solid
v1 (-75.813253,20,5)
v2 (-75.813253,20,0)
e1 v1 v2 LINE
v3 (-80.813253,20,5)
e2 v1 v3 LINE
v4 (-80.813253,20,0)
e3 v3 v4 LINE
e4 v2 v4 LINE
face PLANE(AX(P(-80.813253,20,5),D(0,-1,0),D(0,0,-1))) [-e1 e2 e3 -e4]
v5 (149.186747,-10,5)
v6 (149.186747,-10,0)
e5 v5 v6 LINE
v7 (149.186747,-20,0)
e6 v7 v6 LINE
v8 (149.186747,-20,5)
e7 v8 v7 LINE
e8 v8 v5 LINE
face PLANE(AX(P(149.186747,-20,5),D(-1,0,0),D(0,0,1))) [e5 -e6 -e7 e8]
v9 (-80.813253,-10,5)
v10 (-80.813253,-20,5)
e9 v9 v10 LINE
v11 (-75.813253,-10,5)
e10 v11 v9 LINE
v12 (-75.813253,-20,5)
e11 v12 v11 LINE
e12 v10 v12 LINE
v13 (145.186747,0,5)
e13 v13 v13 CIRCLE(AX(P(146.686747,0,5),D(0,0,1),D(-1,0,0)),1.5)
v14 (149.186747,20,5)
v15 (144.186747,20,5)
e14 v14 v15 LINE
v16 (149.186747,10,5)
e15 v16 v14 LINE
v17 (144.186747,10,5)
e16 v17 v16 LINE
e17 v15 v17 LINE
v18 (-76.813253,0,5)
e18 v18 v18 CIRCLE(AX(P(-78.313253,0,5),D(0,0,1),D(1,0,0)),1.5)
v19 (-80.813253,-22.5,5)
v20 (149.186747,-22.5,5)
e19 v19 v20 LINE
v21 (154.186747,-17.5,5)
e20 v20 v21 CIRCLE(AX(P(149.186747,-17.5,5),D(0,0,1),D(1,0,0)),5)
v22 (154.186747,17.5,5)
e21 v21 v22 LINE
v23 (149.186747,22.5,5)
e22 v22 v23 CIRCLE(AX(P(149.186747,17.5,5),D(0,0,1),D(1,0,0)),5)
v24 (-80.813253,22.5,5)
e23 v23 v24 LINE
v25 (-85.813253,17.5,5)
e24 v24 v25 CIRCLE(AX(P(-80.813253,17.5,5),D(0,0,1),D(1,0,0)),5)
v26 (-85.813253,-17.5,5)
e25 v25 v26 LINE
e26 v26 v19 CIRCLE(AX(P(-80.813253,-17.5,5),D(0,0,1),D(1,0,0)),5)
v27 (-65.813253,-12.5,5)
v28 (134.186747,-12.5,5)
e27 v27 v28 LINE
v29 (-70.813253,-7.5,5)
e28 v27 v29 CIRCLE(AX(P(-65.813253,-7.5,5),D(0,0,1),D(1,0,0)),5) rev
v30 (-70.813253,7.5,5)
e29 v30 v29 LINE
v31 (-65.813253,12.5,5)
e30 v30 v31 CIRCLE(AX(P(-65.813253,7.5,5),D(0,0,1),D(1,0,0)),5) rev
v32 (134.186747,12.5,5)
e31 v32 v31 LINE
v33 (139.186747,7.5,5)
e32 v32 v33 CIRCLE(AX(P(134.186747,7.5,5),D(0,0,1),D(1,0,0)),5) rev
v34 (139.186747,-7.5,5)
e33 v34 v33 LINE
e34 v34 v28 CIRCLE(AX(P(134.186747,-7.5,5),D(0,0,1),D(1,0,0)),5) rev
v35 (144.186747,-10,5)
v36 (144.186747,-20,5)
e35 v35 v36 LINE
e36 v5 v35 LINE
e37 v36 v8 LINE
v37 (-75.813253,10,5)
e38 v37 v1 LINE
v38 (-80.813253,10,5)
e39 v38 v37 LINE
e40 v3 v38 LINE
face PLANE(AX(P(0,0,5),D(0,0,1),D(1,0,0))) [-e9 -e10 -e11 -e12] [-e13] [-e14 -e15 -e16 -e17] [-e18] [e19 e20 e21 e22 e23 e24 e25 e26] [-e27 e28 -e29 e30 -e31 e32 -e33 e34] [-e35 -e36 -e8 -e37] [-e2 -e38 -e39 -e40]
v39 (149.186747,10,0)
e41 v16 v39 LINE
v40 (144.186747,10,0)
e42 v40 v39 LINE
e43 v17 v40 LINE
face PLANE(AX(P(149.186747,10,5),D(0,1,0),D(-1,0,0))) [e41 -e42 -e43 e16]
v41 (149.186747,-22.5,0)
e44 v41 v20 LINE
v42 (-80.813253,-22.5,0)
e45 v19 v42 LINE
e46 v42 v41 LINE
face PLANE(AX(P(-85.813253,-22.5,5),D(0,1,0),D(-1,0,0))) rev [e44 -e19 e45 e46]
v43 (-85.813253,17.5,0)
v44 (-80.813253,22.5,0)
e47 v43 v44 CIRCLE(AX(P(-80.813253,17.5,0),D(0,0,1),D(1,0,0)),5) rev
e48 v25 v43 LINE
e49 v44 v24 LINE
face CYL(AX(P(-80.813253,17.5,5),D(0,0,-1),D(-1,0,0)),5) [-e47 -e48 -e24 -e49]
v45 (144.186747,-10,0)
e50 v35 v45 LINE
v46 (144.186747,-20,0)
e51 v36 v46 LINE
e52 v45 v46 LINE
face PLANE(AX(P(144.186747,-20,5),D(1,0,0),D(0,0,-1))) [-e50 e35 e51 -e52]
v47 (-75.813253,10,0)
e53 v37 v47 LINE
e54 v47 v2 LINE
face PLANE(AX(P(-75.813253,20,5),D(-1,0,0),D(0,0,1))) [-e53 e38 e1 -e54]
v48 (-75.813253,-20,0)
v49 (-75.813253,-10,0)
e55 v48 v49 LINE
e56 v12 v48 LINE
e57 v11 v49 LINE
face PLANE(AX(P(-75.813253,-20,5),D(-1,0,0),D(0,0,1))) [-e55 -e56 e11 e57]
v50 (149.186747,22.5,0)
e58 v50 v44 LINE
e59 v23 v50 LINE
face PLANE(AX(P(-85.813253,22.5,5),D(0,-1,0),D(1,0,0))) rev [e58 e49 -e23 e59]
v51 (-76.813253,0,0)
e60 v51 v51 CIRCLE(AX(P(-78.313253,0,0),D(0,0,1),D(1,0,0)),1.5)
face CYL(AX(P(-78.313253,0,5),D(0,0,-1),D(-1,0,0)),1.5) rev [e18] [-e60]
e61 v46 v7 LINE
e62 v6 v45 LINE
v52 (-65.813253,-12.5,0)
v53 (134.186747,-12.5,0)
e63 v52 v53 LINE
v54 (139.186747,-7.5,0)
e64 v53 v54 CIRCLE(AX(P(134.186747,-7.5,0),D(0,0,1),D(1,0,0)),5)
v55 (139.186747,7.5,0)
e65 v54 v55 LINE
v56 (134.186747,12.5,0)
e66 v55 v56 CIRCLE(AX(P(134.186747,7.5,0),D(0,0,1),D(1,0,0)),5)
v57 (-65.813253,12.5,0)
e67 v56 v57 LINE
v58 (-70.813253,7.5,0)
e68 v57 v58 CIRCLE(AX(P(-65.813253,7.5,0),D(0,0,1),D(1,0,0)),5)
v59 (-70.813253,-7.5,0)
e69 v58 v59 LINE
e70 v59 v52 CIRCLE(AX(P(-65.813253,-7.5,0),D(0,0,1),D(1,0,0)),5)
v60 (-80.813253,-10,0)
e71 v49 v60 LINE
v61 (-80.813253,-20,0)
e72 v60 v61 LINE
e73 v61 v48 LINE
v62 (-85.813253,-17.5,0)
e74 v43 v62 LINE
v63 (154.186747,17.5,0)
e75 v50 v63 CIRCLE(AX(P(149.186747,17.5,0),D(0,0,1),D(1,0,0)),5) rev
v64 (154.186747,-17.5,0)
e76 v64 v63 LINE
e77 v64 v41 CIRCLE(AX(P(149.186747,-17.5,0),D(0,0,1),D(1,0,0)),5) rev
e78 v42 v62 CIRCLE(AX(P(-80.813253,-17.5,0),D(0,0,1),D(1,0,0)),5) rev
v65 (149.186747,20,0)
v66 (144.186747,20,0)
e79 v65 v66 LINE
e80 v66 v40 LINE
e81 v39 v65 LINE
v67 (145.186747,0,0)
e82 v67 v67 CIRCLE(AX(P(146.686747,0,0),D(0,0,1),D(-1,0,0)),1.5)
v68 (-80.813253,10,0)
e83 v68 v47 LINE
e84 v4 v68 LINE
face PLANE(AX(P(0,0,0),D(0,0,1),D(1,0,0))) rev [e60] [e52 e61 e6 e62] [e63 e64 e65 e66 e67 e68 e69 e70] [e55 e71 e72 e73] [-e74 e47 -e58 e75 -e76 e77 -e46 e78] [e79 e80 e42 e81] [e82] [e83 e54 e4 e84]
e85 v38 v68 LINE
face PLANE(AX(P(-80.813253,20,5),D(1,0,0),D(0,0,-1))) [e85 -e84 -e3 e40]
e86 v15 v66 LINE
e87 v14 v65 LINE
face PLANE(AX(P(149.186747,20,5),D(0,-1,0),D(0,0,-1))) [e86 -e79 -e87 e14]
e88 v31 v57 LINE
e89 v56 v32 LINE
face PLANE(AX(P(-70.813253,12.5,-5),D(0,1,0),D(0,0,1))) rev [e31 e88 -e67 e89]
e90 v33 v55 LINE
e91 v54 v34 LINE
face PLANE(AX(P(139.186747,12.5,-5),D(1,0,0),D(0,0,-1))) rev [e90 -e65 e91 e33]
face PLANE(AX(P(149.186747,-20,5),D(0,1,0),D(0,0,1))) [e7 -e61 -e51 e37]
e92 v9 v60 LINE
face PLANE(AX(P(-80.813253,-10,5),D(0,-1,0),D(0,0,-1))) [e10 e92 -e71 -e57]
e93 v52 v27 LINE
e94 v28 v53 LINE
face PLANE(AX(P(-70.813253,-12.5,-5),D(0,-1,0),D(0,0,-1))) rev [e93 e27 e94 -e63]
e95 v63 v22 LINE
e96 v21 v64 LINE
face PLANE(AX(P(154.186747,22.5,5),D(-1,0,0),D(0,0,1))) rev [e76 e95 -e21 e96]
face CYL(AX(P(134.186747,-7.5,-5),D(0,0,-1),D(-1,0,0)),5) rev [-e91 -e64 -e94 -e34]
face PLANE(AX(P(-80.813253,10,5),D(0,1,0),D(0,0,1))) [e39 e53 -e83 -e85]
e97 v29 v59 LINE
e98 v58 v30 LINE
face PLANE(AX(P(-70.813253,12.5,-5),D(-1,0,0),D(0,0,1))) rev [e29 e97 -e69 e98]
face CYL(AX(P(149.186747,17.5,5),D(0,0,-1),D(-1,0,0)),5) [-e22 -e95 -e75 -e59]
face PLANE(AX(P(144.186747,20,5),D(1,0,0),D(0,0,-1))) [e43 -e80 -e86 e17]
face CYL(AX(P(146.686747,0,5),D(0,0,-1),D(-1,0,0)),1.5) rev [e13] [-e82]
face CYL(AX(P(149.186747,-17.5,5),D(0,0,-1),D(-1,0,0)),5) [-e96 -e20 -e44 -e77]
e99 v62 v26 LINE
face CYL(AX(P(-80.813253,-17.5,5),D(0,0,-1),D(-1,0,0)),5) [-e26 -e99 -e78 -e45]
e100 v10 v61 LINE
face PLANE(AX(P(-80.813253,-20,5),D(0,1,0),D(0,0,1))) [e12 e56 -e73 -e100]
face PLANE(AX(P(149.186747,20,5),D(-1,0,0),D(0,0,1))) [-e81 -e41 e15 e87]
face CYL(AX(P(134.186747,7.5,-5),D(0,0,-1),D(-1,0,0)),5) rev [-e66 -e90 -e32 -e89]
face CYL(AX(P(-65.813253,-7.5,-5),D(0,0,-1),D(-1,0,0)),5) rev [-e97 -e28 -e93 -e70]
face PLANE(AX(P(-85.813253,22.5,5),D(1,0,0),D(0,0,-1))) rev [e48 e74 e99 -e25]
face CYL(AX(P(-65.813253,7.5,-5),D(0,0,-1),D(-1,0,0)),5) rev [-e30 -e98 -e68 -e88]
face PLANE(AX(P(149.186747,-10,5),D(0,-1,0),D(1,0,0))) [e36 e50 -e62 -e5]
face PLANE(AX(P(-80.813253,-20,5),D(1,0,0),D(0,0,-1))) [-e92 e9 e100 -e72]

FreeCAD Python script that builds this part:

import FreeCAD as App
import Part
import Sketcher

V = App.Vector
Q = App.Units.Quantity


def edges_at(feature, points):
    """Names of the edges that pass closest to the given points."""
    edges = feature.Shape.Edges
    near = lambda p: min(range(len(edges)), key=lambda i: edges[i].distToShape(Part.Vertex(*p))[0])
    return sorted({f"Edge{near(p) + 1}" for p in points})

doc = App.newDocument("Part")
body = doc.addObject("PartDesign::Body", "Body")

# Sketch on XY plane
sketch1 = body.newObject("Sketcher::SketchObject", "Sketch")
sketch1.AttachmentSupport = (doc.getObject("XY_Plane"), [""])
sketch1.MapMode = "FlatFace"
sketch1.addGeometry(Part.LineSegment(V(-85.8, 22.5, 0), V(-85.8, -22.5, 0)), False)
sketch1.addGeometry(Part.LineSegment(V(-85.8, -22.5, 0), V(154.2, -22.5, 0)), False)
sketch1.addGeometry(Part.LineSegment(V(154.2, -22.5, 0), V(154.2, 22.5, 0)), False)
sketch1.addGeometry(Part.LineSegment(V(154.2, 22.5, 0), V(-85.8, 22.5, 0)), False)
sketch1.addGeometry(Part.LineSegment(V(-75.8, -20, 0), V(-80.8, -20, 0)), False)
sketch1.addGeometry(Part.LineSegment(V(-80.8, -20, 0), V(-80.8, -10, 0)), False)
sketch1.addGeometry(Part.LineSegment(V(-80.8, -10, 0), V(-75.8, -10, 0)), False)
sketch1.addGeometry(Part.LineSegment(V(-75.8, -10, 0), V(-75.8, -20, 0)), False)
sketch1.addGeometry(Part.LineSegment(V(149.2, -20, 0), V(144.2, -20, 0)), False)
sketch1.addGeometry(Part.LineSegment(V(144.2, -20, 0), V(144.2, -10, 0)), False)
sketch1.addGeometry(Part.LineSegment(V(144.2, -10, 0), V(149.2, -10, 0)), False)
sketch1.addGeometry(Part.LineSegment(V(149.2, -10, 0), V(149.2, -20, 0)), False)
sketch1.addGeometry(Part.Circle(V(-78.3, 0, 0), V(0, 0, 1), 1.5), False)
sketch1.addGeometry(Part.LineSegment(V(-75.8, 10, 0), V(-80.8, 10, 0)), False)
sketch1.addGeometry(Part.LineSegment(V(-80.8, 10, 0), V(-80.8, 20, 0)), False)
sketch1.addGeometry(Part.LineSegment(V(-80.8, 20, 0), V(-75.8, 20, 0)), False)
sketch1.addGeometry(Part.LineSegment(V(-75.8, 20, 0), V(-75.8, 10, 0)), False)
sketch1.addGeometry(Part.Circle(V(146.7, 0, 0), V(0, 0, 1), 1.5), False)
sketch1.addGeometry(Part.LineSegment(V(149.2, 10, 0), V(144.2, 10, 0)), False)
sketch1.addGeometry(Part.LineSegment(V(144.2, 10, 0), V(144.2, 20, 0)), False)
sketch1.addGeometry(Part.LineSegment(V(144.2, 20, 0), V(149.2, 20, 0)), False)
sketch1.addGeometry(Part.LineSegment(V(149.2, 20, 0), V(149.2, 10, 0)), False)
sketch1.addConstraint(Sketcher.Constraint("Coincident", 0, 2, 1, 1))
sketch1.addConstraint(Sketcher.Constraint("Coincident", 1, 2, 2, 1))
sketch1.addConstraint(Sketcher.Constraint("Coincident", 2, 2, 3, 1))
sketch1.addConstraint(Sketcher.Constraint("Coincident", 3, 2, 0, 1))
sketch1.addConstraint(Sketcher.Constraint("Coincident", 4, 2, 5, 1))
sketch1.addConstraint(Sketcher.Constraint("Coincident", 5, 2, 6, 1))
sketch1.addConstraint(Sketcher.Constraint("Coincident", 6, 2, 7, 1))
sketch1.addConstraint(Sketcher.Constraint("Coincident", 7, 2, 4, 1))
sketch1.addConstraint(Sketcher.Constraint("Coincident", 8, 2, 9, 1))
sketch1.addConstraint(Sketcher.Constraint("Coincident", 9, 2, 10, 1))
sketch1.addConstraint(Sketcher.Constraint("Coincident", 10, 2, 11, 1))
sketch1.addConstraint(Sketcher.Constraint("Coincident", 11, 2, 8, 1))
sketch1.addConstraint(Sketcher.Constraint("Coincident", 13, 2, 14, 1))
sketch1.addConstraint(Sketcher.Constraint("Coincident", 14, 2, 15, 1))
sketch1.addConstraint(Sketcher.Constraint("Coincident", 15, 2, 16, 1))
sketch1.addConstraint(Sketcher.Constraint("Coincident", 16, 2, 13, 1))
sketch1.addConstraint(Sketcher.Constraint("Coincident", 18, 2, 19, 1))
sketch1.addConstraint(Sketcher.Constraint("Coincident", 19, 2, 20, 1))
sketch1.addConstraint(Sketcher.Constraint("Coincident", 20, 2, 21, 1))
sketch1.addConstraint(Sketcher.Constraint("Coincident", 21, 2, 18, 1))
sketch1.addConstraint(Sketcher.Constraint("Vertical", 0))
sketch1.addConstraint(Sketcher.Constraint("Horizontal", 1))
sketch1.addConstraint(Sketcher.Constraint("Vertical", 2))
sketch1.addConstraint(Sketcher.Constraint("Horizontal", 3))
sketch1.addConstraint(Sketcher.Constraint("Horizontal", 4))
sketch1.addConstraint(Sketcher.Constraint("Vertical", 5))
sketch1.addConstraint(Sketcher.Constraint("Horizontal", 6))
sketch1.addConstraint(Sketcher.Constraint("Vertical", 7))
sketch1.addConstraint(Sketcher.Constraint("Horizontal", 8))
sketch1.addConstraint(Sketcher.Constraint("Vertical", 9))
sketch1.addConstraint(Sketcher.Constraint("Horizontal", 10))
sketch1.addConstraint(Sketcher.Constraint("Vertical", 11))
sketch1.addConstraint(Sketcher.Constraint("Horizontal", 13))
sketch1.addConstraint(Sketcher.Constraint("Vertical", 14))
sketch1.addConstraint(Sketcher.Constraint("Horizontal", 15))
sketch1.addConstraint(Sketcher.Constraint("Vertical", 16))
sketch1.addConstraint(Sketcher.Constraint("Horizontal", 18))
sketch1.addConstraint(Sketcher.Constraint("Vertical", 19))
sketch1.addConstraint(Sketcher.Constraint("Horizontal", 20))
sketch1.addConstraint(Sketcher.Constraint("Vertical", 21))
sketch1.addConstraint(Sketcher.Constraint("Equal", 12, 17))
sketch1.addConstraint(Sketcher.Constraint("Symmetric", 5, 2, 13, 2, -1))
sketch1.addConstraint(Sketcher.Constraint("Symmetric", 7, 2, 15, 2, -1))
sketch1.addConstraint(Sketcher.Constraint("Symmetric", 9, 2, 18, 2, -1))
sketch1.addConstraint(Sketcher.Constraint("Symmetric", 11, 2, 20, 2, -1))
sketch1.addConstraint(Sketcher.Constraint("PointOnObject", 12, 3, -1))
sketch1.addConstraint(Sketcher.Constraint("PointOnObject", 17, 3, -1))
sketch1.addConstraint(Sketcher.Constraint("Horizontal", 7, 2, 8, 2))
sketch1.addConstraint(Sketcher.Constraint("Horizontal", 6, 2, 9, 2))
sketch1.addConstraint(Sketcher.Constraint("Equal", 6, 8))
sketch1.addConstraint(Sketcher.Constraint("Diameter", 12, Q("3 mm")))
sketch1.addConstraint(Sketcher.Constraint("DistanceX", 1, 1, 1, 2, Q("240 mm")))
sketch1.addConstraint(Sketcher.Constraint("DistanceX", 4, 2, 4, 1, Q("5 mm")))
sketch1.addConstraint(Sketcher.Constraint("DistanceY", 0, 2, 0, 1, Q("45 mm")))
sketch1.addConstraint(Sketcher.Constraint("DistanceY", 5, 1, 5, 2, Q("10 mm")))
sketch1.addConstraint(Sketcher.Constraint("DistanceY", 4, 2, -1, 1, Q("20 mm")))
sketch1.addConstraint(Sketcher.Constraint("DistanceX", 12, 3, 17, 3, Q("225 mm")))
sketch1.addConstraint(Sketcher.Constraint("DistanceX", 0, 2, 4, 2, Q("5 mm")))
sketch1.addConstraint(Sketcher.Constraint("DistanceX", 8, 2, 1, 2, Q("10 mm")))
sketch1.addConstraint(Sketcher.Constraint("DistanceY", 0, 2, -1, 1, Q("22.5 mm")))
sketch1.addConstraint(Sketcher.Constraint("DistanceX", 0, 2, 12, 3, Q("7.5 mm")))
sketch1.addConstraint(Sketcher.Constraint("DistanceX", 12, 3, -1, 1, Q("78.313253 mm")))
pad1 = body.newObject("PartDesign::Pad", "Pad")
pad1.Profile = sketch1
pad1.Length = 5

# Sketch on XY plane
sketch2 = body.newObject("Sketcher::SketchObject", "Sketch001")
sketch2.AttachmentSupport = (doc.getObject("XY_Plane"), [""])
sketch2.MapMode = "FlatFace"
sketch2.AttachmentOffset = App.Placement(V(0, 0, 5), App.Rotation())
sketch2.addGeometry(Part.LineSegment(V(-71, 12, 0), V(-71, -12, 0)), False)
sketch2.addGeometry(Part.LineSegment(V(-71, -12, 0), V(139, -12, 0)), False)
sketch2.addGeometry(Part.LineSegment(V(139, -12, 0), V(139, 12, 0)), False)
sketch2.addGeometry(Part.LineSegment(V(139, 12, 0), V(-71, 12, 0)), False)
sketch2.addConstraint(Sketcher.Constraint("Coincident", 0, 2, 1, 1))
sketch2.addConstraint(Sketcher.Constraint("Coincident", 1, 2, 2, 1))
sketch2.addConstraint(Sketcher.Constraint("Coincident", 2, 2, 3, 1))
sketch2.addConstraint(Sketcher.Constraint("Coincident", 3, 2, 0, 1))
sketch2.addConstraint(Sketcher.Constraint("Vertical", 0))
sketch2.addConstraint(Sketcher.Constraint("Horizontal", 1))
sketch2.addConstraint(Sketcher.Constraint("Vertical", 2))
sketch2.addConstraint(Sketcher.Constraint("Horizontal", 3))
sketch2.addConstraint(Sketcher.Constraint("DistanceX", 1, 1, 1, 2, Q("210 mm")))
sketch2.addConstraint(Sketcher.Constraint("DistanceY", 0, 2, 0, 1, Q("25 mm")))
sketch2.addConstraint(Sketcher.Constraint("DistanceY", 0, 2, -1, 1, Q("12.5 mm")))
sketch2.addConstraint(Sketcher.Constraint("DistanceX", 0, 2, -1, 1, Q("70.813253 mm")))
pocket1 = body.newObject("PartDesign::Pocket", "Pocket")
pocket1.Profile = sketch2
pocket1.Length = 10
doc.recompute()

fillet = body.newObject("PartDesign::Fillet", "Fillet")
fillet.Base = (pocket1, edges_at(pocket1, [
    (-85.813, 22.5, 2.5),
    (154.187, 22.5, 2.5),
    (154.187, -22.5, 2.5),
    (-85.813, -22.5, 2.5),
    (-70.813, -12.5, 2.5),
    (-70.813, 12.5, 2.5),
    (139.187, 12.5, 2.5),
    (139.187, -12.5, 2.5),
]))
fillet.Radius = 5

doc.recompute()
